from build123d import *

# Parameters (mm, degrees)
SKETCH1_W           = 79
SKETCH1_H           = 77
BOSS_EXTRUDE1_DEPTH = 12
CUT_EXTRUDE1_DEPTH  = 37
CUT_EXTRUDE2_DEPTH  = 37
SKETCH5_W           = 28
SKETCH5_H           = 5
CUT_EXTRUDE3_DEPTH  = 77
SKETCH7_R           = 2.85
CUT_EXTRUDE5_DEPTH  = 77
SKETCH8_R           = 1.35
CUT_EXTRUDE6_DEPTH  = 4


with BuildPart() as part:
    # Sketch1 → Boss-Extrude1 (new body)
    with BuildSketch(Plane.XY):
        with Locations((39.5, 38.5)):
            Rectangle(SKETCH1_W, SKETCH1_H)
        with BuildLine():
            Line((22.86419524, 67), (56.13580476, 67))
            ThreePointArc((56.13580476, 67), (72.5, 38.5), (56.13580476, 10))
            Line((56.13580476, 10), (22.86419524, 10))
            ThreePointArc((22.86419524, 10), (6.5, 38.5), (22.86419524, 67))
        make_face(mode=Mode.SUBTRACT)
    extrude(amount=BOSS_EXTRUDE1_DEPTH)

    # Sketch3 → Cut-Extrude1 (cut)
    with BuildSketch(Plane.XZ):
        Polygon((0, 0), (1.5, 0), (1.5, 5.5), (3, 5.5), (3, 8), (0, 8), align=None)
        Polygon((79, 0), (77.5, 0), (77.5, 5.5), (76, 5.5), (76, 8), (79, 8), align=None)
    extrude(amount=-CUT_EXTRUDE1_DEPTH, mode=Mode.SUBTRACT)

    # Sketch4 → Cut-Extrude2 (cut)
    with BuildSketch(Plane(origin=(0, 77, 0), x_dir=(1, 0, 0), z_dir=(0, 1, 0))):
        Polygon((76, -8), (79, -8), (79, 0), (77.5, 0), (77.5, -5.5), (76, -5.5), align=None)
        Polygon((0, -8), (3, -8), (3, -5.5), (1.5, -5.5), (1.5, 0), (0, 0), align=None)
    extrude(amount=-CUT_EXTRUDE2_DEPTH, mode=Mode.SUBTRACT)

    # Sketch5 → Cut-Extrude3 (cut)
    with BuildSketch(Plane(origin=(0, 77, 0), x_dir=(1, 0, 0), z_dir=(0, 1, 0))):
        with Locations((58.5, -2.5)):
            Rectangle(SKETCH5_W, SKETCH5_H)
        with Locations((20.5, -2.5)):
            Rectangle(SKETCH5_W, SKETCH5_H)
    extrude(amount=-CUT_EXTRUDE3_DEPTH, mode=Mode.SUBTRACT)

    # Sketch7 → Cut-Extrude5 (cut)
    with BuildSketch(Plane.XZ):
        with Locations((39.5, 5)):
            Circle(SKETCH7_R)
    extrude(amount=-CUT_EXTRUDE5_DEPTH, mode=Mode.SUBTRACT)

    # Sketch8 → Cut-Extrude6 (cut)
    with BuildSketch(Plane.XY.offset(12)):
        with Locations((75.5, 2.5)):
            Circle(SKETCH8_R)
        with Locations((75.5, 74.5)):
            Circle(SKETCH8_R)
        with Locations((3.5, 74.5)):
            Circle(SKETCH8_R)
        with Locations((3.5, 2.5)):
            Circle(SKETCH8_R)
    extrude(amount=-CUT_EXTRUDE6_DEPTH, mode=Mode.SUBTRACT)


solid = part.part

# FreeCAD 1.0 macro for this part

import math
import FreeCAD as App
import Part
import Sketcher
from FreeCAD import Vector
Q = App.Units.Quantity

doc = App.newDocument("Part")
params = doc.addObject("Spreadsheet::Sheet", "Params")
for row, (alias, value) in enumerate([
    ("sketch1_radius", "33 mm"),
    ("sketch1_width", "79 mm"),
    ("sketch1_height", "77 mm"),
    ("pad1_length", "12 mm"),
    ("sketch2_width", "3 mm"),
    ("sketch2_height", "8 mm"),
    ("sketch2_height2", "5.5 mm"),
    ("pocket1_length", "37 mm"),
    ("sketch3_width", "3 mm"),
    ("sketch3_height", "8 mm"),
    ("sketch3_height2", "5.5 mm"),
    ("pocket2_length", "37 mm"),
    ("sketch4_width", "28 mm"),
    ("sketch4_height", "5 mm"),
    ("pocket3_length", "77 mm"),
    ("sketch5_diameter", "5.7 mm"),
    ("pocket4_length", "77 mm"),
    ("sketch6_diameter", "2.7 mm"),
    ("pocket5_length", "4 mm"),
], start=1):
    params.set(f"A{row}", alias)
    params.set(f"B{row}", "=" + value)
    params.setAlias(f"B{row}", alias)

body = doc.addObject("PartDesign::Body", "Body")

# Sketch on XY plane
sketch1 = body.newObject("Sketcher::SketchObject", "Sketch")
sketch1.AttachmentSupport = (doc.getObject("XY_Plane"), [""])
sketch1.MapMode = "FlatFace"
sketch1.addGeometry(Part.LineSegment(Vector(0, 77, 0), Vector(0, 0, 0)), False)
sketch1.addGeometry(Part.LineSegment(Vector(0, 0, 0), Vector(79, 0, 0)), False)
sketch1.addGeometry(Part.LineSegment(Vector(79, 0, 0), Vector(79, 77, 0)), False)
sketch1.addGeometry(Part.LineSegment(Vector(79, 77, 0), Vector(0, 77, 0)), False)
sketch1.addGeometry(Part.ArcOfCircle(Part.Circle(Vector(39.5, 38.5, 0), Vector(0, 0, 1), 33), math.radians(120.272641), math.radians(239.727359)), False)
sketch1.addGeometry(Part.LineSegment(Vector(22.864195, 67, 0), Vector(56.135805, 67, 0)), False)
sketch1.addGeometry(Part.ArcOfCircle(Part.Circle(Vector(39.5, 38.5, 0), Vector(0, 0, 1), 33), math.radians(-59.727359), math.radians(59.727359)), False)
sketch1.addGeometry(Part.LineSegment(Vector(56.135805, 10, 0), Vector(22.864195, 10, 0)), False)
sketch1.addConstraint(Sketcher.Constraint("Coincident", 0, 2, 1, 1))
sketch1.addConstraint(Sketcher.Constraint("Coincident", 1, 2, 2, 1))
sketch1.addConstraint(Sketcher.Constraint("Coincident", 2, 2, 3, 1))
sketch1.addConstraint(Sketcher.Constraint("Coincident", 3, 2, 0, 1))
sketch1.addConstraint(Sketcher.Constraint("Coincident", 4, 1, 5, 1))
sketch1.addConstraint(Sketcher.Constraint("Coincident", 5, 2, 6, 2))
sketch1.addConstraint(Sketcher.Constraint("Coincident", 6, 1, 7, 1))
sketch1.addConstraint(Sketcher.Constraint("Coincident", 7, 2, 4, 2))
sketch1.addConstraint(Sketcher.Constraint("Vertical", 0))
sketch1.addConstraint(Sketcher.Constraint("Horizontal", 1))
sketch1.addConstraint(Sketcher.Constraint("Vertical", 2))
sketch1.addConstraint(Sketcher.Constraint("Horizontal", 3))
sketch1.addConstraint(Sketcher.Constraint("Horizontal", 5))
sketch1.addConstraint(Sketcher.Constraint("Horizontal", 7))
sketch1.addConstraint(Sketcher.Constraint("Coincident", 0, 2, -1, 1))
sketch1.addConstraint(Sketcher.Constraint("Coincident", 6, 3, 4, 3))
sketch1.addConstraint(Sketcher.Constraint("Equal", 4, 6))
sketch1.addConstraint(Sketcher.Constraint("Vertical", 5, 2, 6, 1))
sketch1.addConstraint(Sketcher.Constraint("Radius", 4, Q("33 mm")))
sketch1.addConstraint(Sketcher.Constraint("DistanceX", 1, 1, 1, 2, Q("79 mm")))
sketch1.addConstraint(Sketcher.Constraint("DistanceY", 0, 2, 0, 1, Q("77 mm")))
sketch1.addConstraint(Sketcher.Constraint("DistanceY", -1, 1, 4, 1, Q("67 mm")))
sketch1.addConstraint(Sketcher.Constraint("DistanceY", -1, 1, 6, 1, Q("10 mm")))
sketch1.addConstraint(Sketcher.Constraint("DistanceX", -1, 1, 4, 3, Q("39.5 mm")))
sketch1.setExpression("Constraints[18]", "Params.sketch1_radius")
sketch1.setExpression("Constraints[19]", "Params.sketch1_width")
sketch1.setExpression("Constraints[20]", "Params.sketch1_height")
pad1 = body.newObject("PartDesign::Pad", "Pad")
pad1.Profile = sketch1
pad1.setExpression("Length", "Params.pad1_length")

# Sketch on XZ plane
sketch2 = body.newObject("Sketcher::SketchObject", "Sketch001")
sketch2.AttachmentSupport = (doc.getObject("XZ_Plane"), [""])
sketch2.MapMode = "FlatFace"
sketch2.addGeometry(Part.LineSegment(Vector(0, 0, 0), Vector(1.5, 0, 0)), False)
sketch2.addGeometry(Part.LineSegment(Vector(1.5, 0, 0), Vector(1.5, 5.5, 0)), False)
sketch2.addGeometry(Part.LineSegment(Vector(1.5, 5.5, 0), Vector(3, 5.5, 0)), False)
sketch2.addGeometry(Part.LineSegment(Vector(3, 5.5, 0), Vector(3, 8, 0)), False)
sketch2.addGeometry(Part.LineSegment(Vector(3, 8, 0), Vector(0, 8, 0)), False)
sketch2.addGeometry(Part.LineSegment(Vector(0, 8, 0), Vector(0, 0, 0)), False)
sketch2.addGeometry(Part.LineSegment(Vector(77.5, 0, 0), Vector(79, 0, 0)), False)
sketch2.addGeometry(Part.LineSegment(Vector(79, 0, 0), Vector(79, 8, 0)), False)
sketch2.addGeometry(Part.LineSegment(Vector(79, 8, 0), Vector(76, 8, 0)), False)
sketch2.addGeometry(Part.LineSegment(Vector(76, 8, 0), Vector(76, 5.5, 0)), False)
sketch2.addGeometry(Part.LineSegment(Vector(76, 5.5, 0), Vector(77.5, 5.5, 0)), False)
sketch2.addGeometry(Part.LineSegment(Vector(77.5, 5.5, 0), Vector(77.5, 0, 0)), False)
sketch2.addConstraint(Sketcher.Constraint("Coincident", 0, 2, 1, 1))
sketch2.addConstraint(Sketcher.Constraint("Coincident", 1, 2, 2, 1))
sketch2.addConstraint(Sketcher.Constraint("Coincident", 2, 2, 3, 1))
sketch2.addConstraint(Sketcher.Constraint("Coincident", 3, 2, 4, 1))
sketch2.addConstraint(Sketcher.Constraint("Coincident", 4, 2, 5, 1))
sketch2.addConstraint(Sketcher.Constraint("Coincident", 5, 2, 0, 1))
sketch2.addConstraint(Sketcher.Constraint("Coincident", 6, 2, 7, 1))
sketch2.addConstraint(Sketcher.Constraint("Coincident", 7, 2, 8, 1))
sketch2.addConstraint(Sketcher.Constraint("Coincident", 8, 2, 9, 1))
sketch2.addConstraint(Sketcher.Constraint("Coincident", 9, 2, 10, 1))
sketch2.addConstraint(Sketcher.Constraint("Coincident", 10, 2, 11, 1))
sketch2.addConstraint(Sketcher.Constraint("Coincident", 11, 2, 6, 1))
sketch2.addConstraint(Sketcher.Constraint("Horizontal", 0))
sketch2.addConstraint(Sketcher.Constraint("Vertical", 1))
sketch2.addConstraint(Sketcher.Constraint("Horizontal", 2))
sketch2.addConstraint(Sketcher.Constraint("Vertical", 3))
sketch2.addConstraint(Sketcher.Constraint("Horizontal", 4))
sketch2.addConstraint(Sketcher.Constraint("Vertical", 5))
sketch2.addConstraint(Sketcher.Constraint("Horizontal", 6))
sketch2.addConstraint(Sketcher.Constraint("Vertical", 7))
sketch2.addConstraint(Sketcher.Constraint("Horizontal", 8))
sketch2.addConstraint(Sketcher.Constraint("Vertical", 9))
sketch2.addConstraint(Sketcher.Constraint("Horizontal", 10))
sketch2.addConstraint(Sketcher.Constraint("Vertical", 11))
sketch2.addConstraint(Sketcher.Constraint("Coincident", 5, 2, -1, 1))
sketch2.addConstraint(Sketcher.Constraint("PointOnObject", 6, 2, -1))
sketch2.addConstraint(Sketcher.Constraint("Horizontal", 4, 2, 7, 2))
sketch2.addConstraint(Sketcher.Constraint("Horizontal", 2, 2, 9, 2))
sketch2.addConstraint(Sketcher.Constraint("Equal", 0, 2))
sketch2.addConstraint(Sketcher.Constraint("Equal", 2, 6))
sketch2.addConstraint(Sketcher.Constraint("Equal", 4, 8))
sketch2.addConstraint(Sketcher.Constraint("DistanceX", 4, 2, 4, 1, Q("3 mm")))
sketch2.addConstraint(Sketcher.Constraint("DistanceY", 5, 2, 5, 1, Q("8 mm")))
sketch2.addConstraint(Sketcher.Constraint("DistanceY", 1, 1, 1, 2, Q("5.5 mm")))
sketch2.addConstraint(Sketcher.Constraint("DistanceX", -1, 1, 6, 2, Q("79 mm")))
sketch2.setExpression("Constraints[31]", "Params.sketch2_width")
sketch2.setExpression("Constraints[32]", "Params.sketch2_height")
sketch2.setExpression("Constraints[33]", "Params.sketch2_height2")
pocket1 = body.newObject("PartDesign::Pocket", "Pocket")
pocket1.Profile = sketch2
pocket1.setExpression("Length", "Params.pocket1_length")

# Sketch on XZ plane
sketch3 = body.newObject("Sketcher::SketchObject", "Sketch002")
sketch3.AttachmentSupport = (doc.getObject("XZ_Plane"), [""])
sketch3.MapMode = "FlatFace"
sketch3.AttachmentOffset = App.Placement(Vector(0, 0, -77), App.Rotation())
sketch3.addGeometry(Part.LineSegment(Vector(76, 8, 0), Vector(79, 8, 0)), False)
sketch3.addGeometry(Part.LineSegment(Vector(79, 8, 0), Vector(79, 0, 0)), False)
sketch3.addGeometry(Part.LineSegment(Vector(79, 0, 0), Vector(77.5, 0, 0)), False)
sketch3.addGeometry(Part.LineSegment(Vector(77.5, 0, 0), Vector(77.5, 5.5, 0)), False)
sketch3.addGeometry(Part.LineSegment(Vector(77.5, 5.5, 0), Vector(76, 5.5, 0)), False)
sketch3.addGeometry(Part.LineSegment(Vector(76, 5.5, 0), Vector(76, 8, 0)), False)
sketch3.addGeometry(Part.LineSegment(Vector(0, 8, 0), Vector(3, 8, 0)), False)
sketch3.addGeometry(Part.LineSegment(Vector(3, 8, 0), Vector(3, 5.5, 0)), False)
sketch3.addGeometry(Part.LineSegment(Vector(3, 5.5, 0), Vector(1.5, 5.5, 0)), False)
sketch3.addGeometry(Part.LineSegment(Vector(1.5, 5.5, 0), Vector(1.5, 0, 0)), False)
sketch3.addGeometry(Part.LineSegment(Vector(1.5, 0, 0), Vector(0, 0, 0)), False)
sketch3.addGeometry(Part.LineSegment(Vector(0, 0, 0), Vector(0, 8, 0)), False)
sketch3.addConstraint(Sketcher.Constraint("Coincident", 0, 2, 1, 1))
sketch3.addConstraint(Sketcher.Constraint("Coincident", 1, 2, 2, 1))
sketch3.addConstraint(Sketcher.Constraint("Coincident", 2, 2, 3, 1))
sketch3.addConstraint(Sketcher.Constraint("Coincident", 3, 2, 4, 1))
sketch3.addConstraint(Sketcher.Constraint("Coincident", 4, 2, 5, 1))
sketch3.addConstraint(Sketcher.Constraint("Coincident", 5, 2, 0, 1))
sketch3.addConstraint(Sketcher.Constraint("Coincident", 6, 2, 7, 1))
sketch3.addConstraint(Sketcher.Constraint("Coincident", 7, 2, 8, 1))
sketch3.addConstraint(Sketcher.Constraint("Coincident", 8, 2, 9, 1))
sketch3.addConstraint(Sketcher.Constraint("Coincident", 9, 2, 10, 1))
sketch3.addConstraint(Sketcher.Constraint("Coincident", 10, 2, 11, 1))
sketch3.addConstraint(Sketcher.Constraint("Coincident", 11, 2, 6, 1))
sketch3.addConstraint(Sketcher.Constraint("Horizontal", 0))
sketch3.addConstraint(Sketcher.Constraint("Vertical", 1))
sketch3.addConstraint(Sketcher.Constraint("Horizontal", 2))
sketch3.addConstraint(Sketcher.Constraint("Vertical", 3))
sketch3.addConstraint(Sketcher.Constraint("Horizontal", 4))
sketch3.addConstraint(Sketcher.Constraint("Vertical", 5))
sketch3.addConstraint(Sketcher.Constraint("Horizontal", 6))
sketch3.addConstraint(Sketcher.Constraint("Vertical", 7))
sketch3.addConstraint(Sketcher.Constraint("Horizontal", 8))
sketch3.addConstraint(Sketcher.Constraint("Vertical", 9))
sketch3.addConstraint(Sketcher.Constraint("Horizontal", 10))
sketch3.addConstraint(Sketcher.Constraint("Vertical", 11))
sketch3.addConstraint(Sketcher.Constraint("Coincident", 10, 2, -1, 1))
sketch3.addConstraint(Sketcher.Constraint("PointOnObject", 1, 2, -1))
sketch3.addConstraint(Sketcher.Constraint("Horizontal", 5, 2, 6, 2))
sketch3.addConstraint(Sketcher.Constraint("Horizontal", 4, 2, 7, 2))
sketch3.addConstraint(Sketcher.Constraint("Equal", 2, 4))
sketch3.addConstraint(Sketcher.Constraint("Equal", 0, 6))
sketch3.addConstraint(Sketcher.Constraint("Equal", 4, 8))
sketch3.addConstraint(Sketcher.Constraint("DistanceX", 0, 1, 0, 2, Q("3 mm")))
sketch3.addConstraint(Sketcher.Constraint("DistanceY", 1, 2, 1, 1, Q("8 mm")))
sketch3.addConstraint(Sketcher.Constraint("DistanceY", 3, 1, 3, 2, Q("5.5 mm")))
sketch3.addConstraint(Sketcher.Constraint("DistanceX", -1, 1, 0, 2, Q("79 mm")))
sketch3.setExpression("Constraints[31]", "Params.sketch3_width")
sketch3.setExpression("Constraints[32]", "Params.sketch3_height")
sketch3.setExpression("Constraints[33]", "Params.sketch3_height2")
pocket2 = body.newObject("PartDesign::Pocket", "Pocket001")
pocket2.Profile = sketch3
pocket2.setExpression("Length", "Params.pocket2_length")
pocket2.Reversed = True

# Sketch on XZ plane
sketch4 = body.newObject("Sketcher::SketchObject", "Sketch003")
sketch4.AttachmentSupport = (doc.getObject("XZ_Plane"), [""])
sketch4.MapMode = "FlatFace"
sketch4.AttachmentOffset = App.Placement(Vector(0, 0, -77), App.Rotation())
sketch4.addGeometry(Part.LineSegment(Vector(44.5, 0, 0), Vector(44.5, 5, 0)), False)
sketch4.addGeometry(Part.LineSegment(Vector(44.5, 5, 0), Vector(72.5, 5, 0)), False)
sketch4.addGeometry(Part.LineSegment(Vector(72.5, 5, 0), Vector(72.5, 0, 0)), False)
sketch4.addGeometry(Part.LineSegment(Vector(72.5, 0, 0), Vector(44.5, 0, 0)), False)
sketch4.addGeometry(Part.LineSegment(Vector(6.5, 0, 0), Vector(6.5, 5, 0)), False)
sketch4.addGeometry(Part.LineSegment(Vector(6.5, 5, 0), Vector(34.5, 5, 0)), False)
sketch4.addGeometry(Part.LineSegment(Vector(34.5, 5, 0), Vector(34.5, 0, 0)), False)
sketch4.addGeometry(Part.LineSegment(Vector(34.5, 0, 0), Vector(6.5, 0, 0)), False)
sketch4.addConstraint(Sketcher.Constraint("Coincident", 0, 2, 1, 1))
sketch4.addConstraint(Sketcher.Constraint("Coincident", 1, 2, 2, 1))
sketch4.addConstraint(Sketcher.Constraint("Coincident", 2, 2, 3, 1))
sketch4.addConstraint(Sketcher.Constraint("Coincident", 3, 2, 0, 1))
sketch4.addConstraint(Sketcher.Constraint("Coincident", 4, 2, 5, 1))
sketch4.addConstraint(Sketcher.Constraint("Coincident", 5, 2, 6, 1))
sketch4.addConstraint(Sketcher.Constraint("Coincident", 6, 2, 7, 1))
sketch4.addConstraint(Sketcher.Constraint("Coincident", 7, 2, 4, 1))
sketch4.addConstraint(Sketcher.Constraint("Vertical", 0))
sketch4.addConstraint(Sketcher.Constraint("Horizontal", 1))
sketch4.addConstraint(Sketcher.Constraint("Vertical", 2))
sketch4.addConstraint(Sketcher.Constraint("Horizontal", 3))
sketch4.addConstraint(Sketcher.Constraint("Vertical", 4))
sketch4.addConstraint(Sketcher.Constraint("Horizontal", 5))
sketch4.addConstraint(Sketcher.Constraint("Vertical", 6))
sketch4.addConstraint(Sketcher.Constraint("Horizontal", 7))
sketch4.addConstraint(Sketcher.Constraint("PointOnObject", 2, 2, -1))
sketch4.addConstraint(Sketcher.Constraint("PointOnObject", 6, 2, -1))
sketch4.addConstraint(Sketcher.Constraint("Horizontal", 1, 2, 4, 2))
sketch4.addConstraint(Sketcher.Constraint("Equal", 3, 5))
sketch4.addConstraint(Sketcher.Constraint("DistanceX", 1, 1, 1, 2, Q("28 mm")))
sketch4.addConstraint(Sketcher.Constraint("DistanceY", 0, 1, 0, 2, Q("5 mm")))
sketch4.addConstraint(Sketcher.Constraint("DistanceX", 4, 2, 0, 2, Q("38 mm")))
sketch4.addConstraint(Sketcher.Constraint("DistanceX", -1, 1, 0, 2, Q("44.5 mm")))
sketch4.setExpression("Constraints[20]", "Params.sketch4_width")
sketch4.setExpression("Constraints[21]", "Params.sketch4_height")
pocket3 = body.newObject("PartDesign::Pocket", "Pocket002")
pocket3.Profile = sketch4
pocket3.setExpression("Length", "Params.pocket3_length")
pocket3.Reversed = True

# Sketch on XZ plane
sketch5 = body.newObject("Sketcher::SketchObject", "Sketch004")
sketch5.AttachmentSupport = (doc.getObject("XZ_Plane"), [""])
sketch5.MapMode = "FlatFace"
sketch5.addGeometry(Part.Circle(Vector(39.5, 5, 0), Vector(0, 0, 1), 2.85), False)
sketch5.addConstraint(Sketcher.Constraint("Diameter", 0, Q("5.7 mm")))
sketch5.addConstraint(Sketcher.Constraint("DistanceY", -1, 1, 0, 3, Q("5 mm")))
sketch5.addConstraint(Sketcher.Constraint("DistanceX", -1, 1, 0, 3, Q("39.5 mm")))
sketch5.setExpression("Constraints[0]", "Params.sketch5_diameter")
pocket4 = body.newObject("PartDesign::Pocket", "Pocket003")
pocket4.Profile = sketch5
pocket4.setExpression("Length", "Params.pocket4_length")

# Sketch on XY plane
sketch6 = body.newObject("Sketcher::SketchObject", "Sketch005")
sketch6.AttachmentSupport = (doc.getObject("XY_Plane"), [""])
sketch6.MapMode = "FlatFace"
sketch6.AttachmentOffset = App.Placement(Vector(0, 0, 12), App.Rotation())
sketch6.addGeometry(Part.Circle(Vector(75.5, 2.5, 0), Vector(0, 0, 1), 1.35), False)
sketch6.addGeometry(Part.Circle(Vector(75.5, 74.5, 0), Vector(0, 0, 1), 1.35), False)
sketch6.addGeometry(Part.Circle(Vector(3.5, 74.5, 0), Vector(0, 0, 1), 1.35), False)
sketch6.addGeometry(Part.Circle(Vector(3.5, 2.5, 0), Vector(0, 0, 1), 1.35), False)
sketch6.addConstraint(Sketcher.Constraint("Equal", 0, 1))
sketch6.addConstraint(Sketcher.Constraint("Equal", 1, 2))
sketch6.addConstraint(Sketcher.Constraint("Equal", 2, 3))
sketch6.addConstraint(Sketcher.Constraint("Horizontal", 1, 3, 2, 3))
sketch6.addConstraint(Sketcher.Constraint("Horizontal", 0, 3, 3, 3))
sketch6.addConstraint(Sketcher.Constraint("Vertical", 0, 3, 1, 3))
sketch6.addConstraint(Sketcher.Constraint("Vertical", 2, 3, 3, 3))
sketch6.addConstraint(Sketcher.Constraint("Diameter", 0, Q("2.7 mm")))
sketch6.addConstraint(Sketcher.Constraint("DistanceY", 0, 3, 1, 3, Q("72 mm")))
sketch6.addConstraint(Sketcher.Constraint("DistanceX", 2, 3, 1, 3, Q("72 mm")))
sketch6.addConstraint(Sketcher.Constraint("DistanceX", -1, 1, 0, 3, Q("75.5 mm")))
sketch6.addConstraint(Sketcher.Constraint("DistanceY", -1, 1, 0, 3, Q("2.5 mm")))
sketch6.setExpression("Constraints[7]", "Params.sketch6_diameter")
pocket5 = body.newObject("PartDesign::Pocket", "Pocket004")
pocket5.Profile = sketch6
pocket5.setExpression("Length", "Params.pocket5_length")

doc.recompute()
